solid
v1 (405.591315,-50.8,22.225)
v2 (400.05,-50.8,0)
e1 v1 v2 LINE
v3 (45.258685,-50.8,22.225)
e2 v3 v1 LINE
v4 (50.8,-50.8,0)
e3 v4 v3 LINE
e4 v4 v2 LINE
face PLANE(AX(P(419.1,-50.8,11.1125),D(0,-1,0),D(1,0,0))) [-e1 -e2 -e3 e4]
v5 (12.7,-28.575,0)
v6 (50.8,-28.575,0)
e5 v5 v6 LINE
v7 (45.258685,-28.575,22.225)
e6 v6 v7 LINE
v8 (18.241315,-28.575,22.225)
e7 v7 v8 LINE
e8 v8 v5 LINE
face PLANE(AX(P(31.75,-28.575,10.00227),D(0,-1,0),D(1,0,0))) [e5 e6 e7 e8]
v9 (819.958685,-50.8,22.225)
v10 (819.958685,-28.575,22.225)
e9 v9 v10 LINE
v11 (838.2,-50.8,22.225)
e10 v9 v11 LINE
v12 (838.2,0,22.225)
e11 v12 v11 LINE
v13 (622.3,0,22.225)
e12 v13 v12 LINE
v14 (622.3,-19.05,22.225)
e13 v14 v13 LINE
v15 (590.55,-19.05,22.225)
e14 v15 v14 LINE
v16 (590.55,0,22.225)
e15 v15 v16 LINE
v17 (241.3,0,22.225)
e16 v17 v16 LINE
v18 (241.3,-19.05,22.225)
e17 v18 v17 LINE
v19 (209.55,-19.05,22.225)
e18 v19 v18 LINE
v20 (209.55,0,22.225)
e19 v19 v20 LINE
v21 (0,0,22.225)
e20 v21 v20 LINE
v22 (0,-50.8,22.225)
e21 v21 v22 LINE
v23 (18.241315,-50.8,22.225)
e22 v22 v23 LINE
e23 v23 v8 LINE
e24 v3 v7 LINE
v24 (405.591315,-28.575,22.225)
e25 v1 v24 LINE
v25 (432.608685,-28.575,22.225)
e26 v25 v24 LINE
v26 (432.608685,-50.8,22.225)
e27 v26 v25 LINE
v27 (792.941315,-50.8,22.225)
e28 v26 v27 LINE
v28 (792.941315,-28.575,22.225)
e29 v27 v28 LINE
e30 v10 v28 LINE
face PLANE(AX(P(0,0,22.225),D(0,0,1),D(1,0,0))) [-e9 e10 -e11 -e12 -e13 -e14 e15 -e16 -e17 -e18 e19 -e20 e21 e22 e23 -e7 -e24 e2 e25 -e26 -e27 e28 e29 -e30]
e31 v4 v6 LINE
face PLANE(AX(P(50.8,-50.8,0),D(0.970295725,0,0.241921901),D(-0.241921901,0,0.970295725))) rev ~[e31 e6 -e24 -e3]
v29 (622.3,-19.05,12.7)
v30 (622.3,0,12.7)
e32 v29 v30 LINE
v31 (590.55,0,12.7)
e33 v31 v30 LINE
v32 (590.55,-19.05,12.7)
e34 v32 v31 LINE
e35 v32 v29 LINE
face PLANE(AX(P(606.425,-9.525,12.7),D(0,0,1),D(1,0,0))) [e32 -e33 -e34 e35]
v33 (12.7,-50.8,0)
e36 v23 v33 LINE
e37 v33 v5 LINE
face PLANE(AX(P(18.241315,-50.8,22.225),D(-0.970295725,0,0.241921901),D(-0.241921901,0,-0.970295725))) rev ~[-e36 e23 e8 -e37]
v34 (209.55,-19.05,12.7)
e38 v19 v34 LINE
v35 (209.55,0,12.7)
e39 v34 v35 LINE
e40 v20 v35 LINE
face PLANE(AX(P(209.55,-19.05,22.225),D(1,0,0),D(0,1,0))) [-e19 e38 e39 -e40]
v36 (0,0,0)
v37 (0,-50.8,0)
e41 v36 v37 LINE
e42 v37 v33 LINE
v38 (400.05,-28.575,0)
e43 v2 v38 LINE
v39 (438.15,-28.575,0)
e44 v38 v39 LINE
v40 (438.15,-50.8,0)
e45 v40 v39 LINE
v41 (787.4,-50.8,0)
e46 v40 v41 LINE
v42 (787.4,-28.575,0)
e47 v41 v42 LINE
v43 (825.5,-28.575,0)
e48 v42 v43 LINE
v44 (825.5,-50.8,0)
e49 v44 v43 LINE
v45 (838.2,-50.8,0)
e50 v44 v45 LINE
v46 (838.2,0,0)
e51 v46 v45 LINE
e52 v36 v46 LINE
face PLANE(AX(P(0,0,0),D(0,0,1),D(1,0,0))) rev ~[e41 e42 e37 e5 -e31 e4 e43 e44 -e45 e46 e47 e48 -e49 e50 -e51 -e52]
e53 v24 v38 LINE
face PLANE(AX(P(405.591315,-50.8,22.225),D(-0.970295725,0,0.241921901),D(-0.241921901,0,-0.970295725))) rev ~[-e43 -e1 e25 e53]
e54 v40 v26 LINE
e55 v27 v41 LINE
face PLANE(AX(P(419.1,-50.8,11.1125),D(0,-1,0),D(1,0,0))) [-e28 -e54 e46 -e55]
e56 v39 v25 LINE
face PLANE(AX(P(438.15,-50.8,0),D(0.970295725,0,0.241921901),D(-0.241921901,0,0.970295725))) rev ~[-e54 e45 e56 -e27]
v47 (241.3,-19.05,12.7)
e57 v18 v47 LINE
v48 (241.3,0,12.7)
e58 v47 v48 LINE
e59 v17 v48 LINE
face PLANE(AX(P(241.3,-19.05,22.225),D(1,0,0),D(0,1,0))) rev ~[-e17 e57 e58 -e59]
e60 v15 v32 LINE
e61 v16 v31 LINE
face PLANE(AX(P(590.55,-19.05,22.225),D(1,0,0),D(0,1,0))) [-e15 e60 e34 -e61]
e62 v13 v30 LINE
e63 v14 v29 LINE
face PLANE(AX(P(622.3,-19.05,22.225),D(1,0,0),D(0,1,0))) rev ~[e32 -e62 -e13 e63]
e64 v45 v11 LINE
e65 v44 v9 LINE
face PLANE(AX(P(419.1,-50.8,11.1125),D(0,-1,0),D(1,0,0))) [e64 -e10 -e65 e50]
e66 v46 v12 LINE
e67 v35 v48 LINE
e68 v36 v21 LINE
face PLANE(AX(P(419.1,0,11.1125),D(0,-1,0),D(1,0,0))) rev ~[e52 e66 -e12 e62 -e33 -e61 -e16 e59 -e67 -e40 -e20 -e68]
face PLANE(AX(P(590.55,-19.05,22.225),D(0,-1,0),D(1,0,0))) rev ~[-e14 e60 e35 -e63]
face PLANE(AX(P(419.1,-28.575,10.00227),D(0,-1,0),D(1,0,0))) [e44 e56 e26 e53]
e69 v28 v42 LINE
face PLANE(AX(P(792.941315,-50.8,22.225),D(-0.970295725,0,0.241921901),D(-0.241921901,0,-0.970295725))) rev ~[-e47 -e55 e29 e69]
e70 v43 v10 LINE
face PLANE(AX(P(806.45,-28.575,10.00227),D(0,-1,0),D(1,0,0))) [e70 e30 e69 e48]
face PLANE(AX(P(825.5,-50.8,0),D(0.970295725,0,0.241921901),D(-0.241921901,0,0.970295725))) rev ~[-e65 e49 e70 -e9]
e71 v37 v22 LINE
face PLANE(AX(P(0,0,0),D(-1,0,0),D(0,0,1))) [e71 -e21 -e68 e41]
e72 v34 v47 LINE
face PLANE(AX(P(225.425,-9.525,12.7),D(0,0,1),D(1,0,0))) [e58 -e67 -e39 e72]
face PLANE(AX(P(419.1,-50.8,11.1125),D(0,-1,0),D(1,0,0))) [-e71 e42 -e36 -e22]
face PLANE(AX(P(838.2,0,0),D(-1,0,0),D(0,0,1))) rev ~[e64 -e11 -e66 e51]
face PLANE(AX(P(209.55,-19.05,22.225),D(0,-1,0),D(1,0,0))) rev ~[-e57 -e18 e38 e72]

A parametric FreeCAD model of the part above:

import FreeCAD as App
import Part
import Sketcher
Q = App.Units.Quantity


def add_polygon(sketch, points):
    """Adds a closed chain of lines whose ends are joined by coincident constraints."""
    first, n = sketch.GeometryCount, len(points)
    for a, b in zip(points, points[1:] + points[:1]):
        sketch.addGeometry(Part.LineSegment(App.Vector(*a, 0), App.Vector(*b, 0)), False)
    for i in range(n):
        sketch.addConstraint(Sketcher.Constraint("Coincident", first + i, 2, first + (i + 1) % n, 1))

doc = App.newDocument("Part")
body = doc.addObject("PartDesign::Body", "Body")

# Sketch on XZ plane
sketch1 = doc.addObject("Sketcher::SketchObject", "Sketch")
body.addObject(sketch1)
sketch1.AttachmentSupport = (doc.XZ_Plane, [""])
sketch1.MapMode = "FlatFace"
add_polygon(sketch1, [(0, 22), (0, 0), (838, 0), (838, 22)])  # lines 0-3
sketch1.addConstraint([
    Sketcher.Constraint("Vertical", 0),
    Sketcher.Constraint("Horizontal", 1),
    Sketcher.Constraint("Vertical", 2),
    Sketcher.Constraint("Horizontal", 3),
    Sketcher.Constraint("Coincident", 0, 2, -1, 1),
    Sketcher.Constraint("DistanceX", 1, 1, 1, 2, Q("33 in")),
    Sketcher.Constraint("DistanceY", 0, 2, 0, 1, Q("0.875 in")),
])
pad1 = doc.addObject("PartDesign::Pad", "Pad")
body.addObject(pad1)
pad1.Profile = sketch1
pad1.Length = Q("2 in")

# Sketch on XZ plane
sketch2 = doc.addObject("Sketcher::SketchObject", "Sketch001")
body.addObject(sketch2)
sketch2.AttachmentSupport = (doc.XZ_Plane, [""])
sketch2.MapMode = "FlatFace"
sketch2.AttachmentOffset = App.Placement(App.Vector(0, 0, 2 * 25.4), App.Rotation())
add_polygon(sketch2, [(406, 22), (400, 0), (438, 0), (433, 22)])  # lines 0-3
add_polygon(sketch2, [(793, 22), (787, 0), (826, 0), (820, 22)])  # lines 4-7
add_polygon(sketch2, [(13, 0), (51, 0), (45, 22), (18, 22)])  # lines 8-11
sketch2.addConstraint([
    Sketcher.Constraint("Horizontal", 1),
    Sketcher.Constraint("Horizontal", 3),
    Sketcher.Constraint("Horizontal", 5),
    Sketcher.Constraint("Horizontal", 7),
    Sketcher.Constraint("Horizontal", 8),
    Sketcher.Constraint("Horizontal", 10),
    Sketcher.Constraint("PointOnObject", 0, 2, -1),
    Sketcher.Constraint("PointOnObject", 4, 2, -1),
    Sketcher.Constraint("PointOnObject", 8, 2, -1),
    Sketcher.Constraint("Parallel", 0, 4),
    Sketcher.Constraint("Parallel", 2, 6),
    Sketcher.Constraint("Parallel", 6, 9),
    Sketcher.Constraint("Parallel", 4, 11),
    Sketcher.Constraint("Horizontal", 3, 2, 6, 2),
    Sketcher.Constraint("Horizontal", 7, 2, 9, 2),
    Sketcher.Constraint("Equal", 1, 5),
    Sketcher.Constraint("Equal", 5, 8),
    Sketcher.Constraint("Equal", 0, 2),
    Sketcher.Constraint("DistanceX", 1, 1, 1, 2, Q("1.5 in")),
    Sketcher.Constraint("DistanceX", -1, 1, 4, 2, Q("31 in")),
    Sketcher.Constraint("DistanceX", -1, 1, 8, 2, Q("2 in")),
    Sketcher.Constraint("Angle", 0, Q("-104 deg")),
    Sketcher.Constraint("DistanceX", -1, 1, 0, 2, Q("15.75 in")),
    Sketcher.Constraint("DistanceY", -1, 1, 2, 2, Q("0.875 in")),
])
pocket1 = doc.addObject("PartDesign::Pocket", "Pocket")
body.addObject(pocket1)
pocket1.Profile = sketch2
pocket1.Length = Q("0.875 in")

# Sketch on XY plane
sketch3 = doc.addObject("Sketcher::SketchObject", "Sketch002")
body.addObject(sketch3)
sketch3.AttachmentSupport = (doc.XY_Plane, [""])
sketch3.MapMode = "FlatFace"
sketch3.AttachmentOffset = App.Placement(App.Vector(0, 0, 0.875 * 25.4), App.Rotation())
add_polygon(sketch3, [(210, 0), (210, -19), (241, -19), (241, 0)])  # lines 0-3
add_polygon(sketch3, [(591, 0), (591, -19), (622, -19), (622, 0)])  # lines 4-7
sketch3.addConstraint([
    Sketcher.Constraint("Vertical", 0),
    Sketcher.Constraint("Horizontal", 1),
    Sketcher.Constraint("Vertical", 2),
    Sketcher.Constraint("Horizontal", 3),
    Sketcher.Constraint("Vertical", 4),
    Sketcher.Constraint("Horizontal", 5),
    Sketcher.Constraint("Vertical", 6),
    Sketcher.Constraint("Horizontal", 7),
    Sketcher.Constraint("PointOnObject", 2, 2, -1),
    Sketcher.Constraint("PointOnObject", 6, 2, -1),
    Sketcher.Constraint("Horizontal", 1, 2, 4, 2),
    Sketcher.Constraint("Equal", 3, 5),
    Sketcher.Constraint("DistanceX", 0, 2, 4, 2, Q("15 in")),
    Sketcher.Constraint("DistanceX", 1, 1, 1, 2, Q("1.25 in")),
    Sketcher.Constraint("DistanceY", 0, 2, 0, 1, Q("0.75 in")),
    Sketcher.Constraint("DistanceX", -1, 1, 1, 2, Q("9.5 in")),
])
pocket2 = doc.addObject("PartDesign::Pocket", "Pocket001")
body.addObject(pocket2)
pocket2.Profile = sketch3
pocket2.Length = Q("0.375 in")

doc.recompute()
